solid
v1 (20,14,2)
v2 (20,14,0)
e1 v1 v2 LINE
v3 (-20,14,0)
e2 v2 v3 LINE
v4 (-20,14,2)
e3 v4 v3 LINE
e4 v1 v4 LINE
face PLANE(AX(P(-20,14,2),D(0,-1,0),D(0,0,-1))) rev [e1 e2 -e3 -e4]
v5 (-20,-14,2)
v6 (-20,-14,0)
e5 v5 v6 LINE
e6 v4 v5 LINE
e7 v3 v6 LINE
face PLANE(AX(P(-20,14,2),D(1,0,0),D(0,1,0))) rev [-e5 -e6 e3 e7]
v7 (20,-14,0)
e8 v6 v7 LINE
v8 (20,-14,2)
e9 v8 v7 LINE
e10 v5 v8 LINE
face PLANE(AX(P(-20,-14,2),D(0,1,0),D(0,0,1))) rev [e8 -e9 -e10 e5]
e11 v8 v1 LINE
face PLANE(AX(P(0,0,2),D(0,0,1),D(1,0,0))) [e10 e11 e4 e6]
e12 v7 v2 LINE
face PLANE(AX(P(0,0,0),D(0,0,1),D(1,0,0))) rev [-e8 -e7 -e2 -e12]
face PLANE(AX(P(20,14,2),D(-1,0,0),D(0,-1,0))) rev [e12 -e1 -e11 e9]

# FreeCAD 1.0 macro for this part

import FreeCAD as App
import Part
import Sketcher

doc = App.newDocument("Part")
body = doc.addObject("PartDesign::Body", "Body")

sketch1 = body.newObject("Sketcher::SketchObject", "Sketch")
sketch1.AttachmentSupport = (doc.getObject("XY_Plane"), [""])
sketch1.MapMode = "FlatFace"
sketch1.addGeometry([
    Part.LineSegment(App.Vector(-20, 14, 0), App.Vector(-20, -14, 0)),
    Part.LineSegment(App.Vector(-20, -14, 0), App.Vector(20, -14, 0)),
    Part.LineSegment(App.Vector(20, -14, 0), App.Vector(20, 14, 0)),
    Part.LineSegment(App.Vector(20, 14, 0), App.Vector(-20, 14, 0)),
], False)
sketch1.addConstraint([
    Sketcher.Constraint("Coincident", 0, 2, 1, 1),
    Sketcher.Constraint("Coincident", 1, 2, 2, 1),
    Sketcher.Constraint("Coincident", 2, 2, 3, 1),
    Sketcher.Constraint("Coincident", 3, 2, 0, 1),
    Sketcher.Constraint("Vertical", 0),
    Sketcher.Constraint("Horizontal", 1),
    Sketcher.Constraint("Vertical", 2),
    Sketcher.Constraint("Horizontal", 3),
    Sketcher.Constraint("Symmetric", 0, 2, 2, 2, -1, 1),
    Sketcher.Constraint("DistanceX", 1, 1, 1, 2, 40.0),
    Sketcher.Constraint("DistanceY", 0, 2, 0, 1, 28.0),
])
pad1 = body.newObject("PartDesign::Pad", "Pad")
pad1.Profile = sketch1
pad1.Length = 2

doc.recompute()
